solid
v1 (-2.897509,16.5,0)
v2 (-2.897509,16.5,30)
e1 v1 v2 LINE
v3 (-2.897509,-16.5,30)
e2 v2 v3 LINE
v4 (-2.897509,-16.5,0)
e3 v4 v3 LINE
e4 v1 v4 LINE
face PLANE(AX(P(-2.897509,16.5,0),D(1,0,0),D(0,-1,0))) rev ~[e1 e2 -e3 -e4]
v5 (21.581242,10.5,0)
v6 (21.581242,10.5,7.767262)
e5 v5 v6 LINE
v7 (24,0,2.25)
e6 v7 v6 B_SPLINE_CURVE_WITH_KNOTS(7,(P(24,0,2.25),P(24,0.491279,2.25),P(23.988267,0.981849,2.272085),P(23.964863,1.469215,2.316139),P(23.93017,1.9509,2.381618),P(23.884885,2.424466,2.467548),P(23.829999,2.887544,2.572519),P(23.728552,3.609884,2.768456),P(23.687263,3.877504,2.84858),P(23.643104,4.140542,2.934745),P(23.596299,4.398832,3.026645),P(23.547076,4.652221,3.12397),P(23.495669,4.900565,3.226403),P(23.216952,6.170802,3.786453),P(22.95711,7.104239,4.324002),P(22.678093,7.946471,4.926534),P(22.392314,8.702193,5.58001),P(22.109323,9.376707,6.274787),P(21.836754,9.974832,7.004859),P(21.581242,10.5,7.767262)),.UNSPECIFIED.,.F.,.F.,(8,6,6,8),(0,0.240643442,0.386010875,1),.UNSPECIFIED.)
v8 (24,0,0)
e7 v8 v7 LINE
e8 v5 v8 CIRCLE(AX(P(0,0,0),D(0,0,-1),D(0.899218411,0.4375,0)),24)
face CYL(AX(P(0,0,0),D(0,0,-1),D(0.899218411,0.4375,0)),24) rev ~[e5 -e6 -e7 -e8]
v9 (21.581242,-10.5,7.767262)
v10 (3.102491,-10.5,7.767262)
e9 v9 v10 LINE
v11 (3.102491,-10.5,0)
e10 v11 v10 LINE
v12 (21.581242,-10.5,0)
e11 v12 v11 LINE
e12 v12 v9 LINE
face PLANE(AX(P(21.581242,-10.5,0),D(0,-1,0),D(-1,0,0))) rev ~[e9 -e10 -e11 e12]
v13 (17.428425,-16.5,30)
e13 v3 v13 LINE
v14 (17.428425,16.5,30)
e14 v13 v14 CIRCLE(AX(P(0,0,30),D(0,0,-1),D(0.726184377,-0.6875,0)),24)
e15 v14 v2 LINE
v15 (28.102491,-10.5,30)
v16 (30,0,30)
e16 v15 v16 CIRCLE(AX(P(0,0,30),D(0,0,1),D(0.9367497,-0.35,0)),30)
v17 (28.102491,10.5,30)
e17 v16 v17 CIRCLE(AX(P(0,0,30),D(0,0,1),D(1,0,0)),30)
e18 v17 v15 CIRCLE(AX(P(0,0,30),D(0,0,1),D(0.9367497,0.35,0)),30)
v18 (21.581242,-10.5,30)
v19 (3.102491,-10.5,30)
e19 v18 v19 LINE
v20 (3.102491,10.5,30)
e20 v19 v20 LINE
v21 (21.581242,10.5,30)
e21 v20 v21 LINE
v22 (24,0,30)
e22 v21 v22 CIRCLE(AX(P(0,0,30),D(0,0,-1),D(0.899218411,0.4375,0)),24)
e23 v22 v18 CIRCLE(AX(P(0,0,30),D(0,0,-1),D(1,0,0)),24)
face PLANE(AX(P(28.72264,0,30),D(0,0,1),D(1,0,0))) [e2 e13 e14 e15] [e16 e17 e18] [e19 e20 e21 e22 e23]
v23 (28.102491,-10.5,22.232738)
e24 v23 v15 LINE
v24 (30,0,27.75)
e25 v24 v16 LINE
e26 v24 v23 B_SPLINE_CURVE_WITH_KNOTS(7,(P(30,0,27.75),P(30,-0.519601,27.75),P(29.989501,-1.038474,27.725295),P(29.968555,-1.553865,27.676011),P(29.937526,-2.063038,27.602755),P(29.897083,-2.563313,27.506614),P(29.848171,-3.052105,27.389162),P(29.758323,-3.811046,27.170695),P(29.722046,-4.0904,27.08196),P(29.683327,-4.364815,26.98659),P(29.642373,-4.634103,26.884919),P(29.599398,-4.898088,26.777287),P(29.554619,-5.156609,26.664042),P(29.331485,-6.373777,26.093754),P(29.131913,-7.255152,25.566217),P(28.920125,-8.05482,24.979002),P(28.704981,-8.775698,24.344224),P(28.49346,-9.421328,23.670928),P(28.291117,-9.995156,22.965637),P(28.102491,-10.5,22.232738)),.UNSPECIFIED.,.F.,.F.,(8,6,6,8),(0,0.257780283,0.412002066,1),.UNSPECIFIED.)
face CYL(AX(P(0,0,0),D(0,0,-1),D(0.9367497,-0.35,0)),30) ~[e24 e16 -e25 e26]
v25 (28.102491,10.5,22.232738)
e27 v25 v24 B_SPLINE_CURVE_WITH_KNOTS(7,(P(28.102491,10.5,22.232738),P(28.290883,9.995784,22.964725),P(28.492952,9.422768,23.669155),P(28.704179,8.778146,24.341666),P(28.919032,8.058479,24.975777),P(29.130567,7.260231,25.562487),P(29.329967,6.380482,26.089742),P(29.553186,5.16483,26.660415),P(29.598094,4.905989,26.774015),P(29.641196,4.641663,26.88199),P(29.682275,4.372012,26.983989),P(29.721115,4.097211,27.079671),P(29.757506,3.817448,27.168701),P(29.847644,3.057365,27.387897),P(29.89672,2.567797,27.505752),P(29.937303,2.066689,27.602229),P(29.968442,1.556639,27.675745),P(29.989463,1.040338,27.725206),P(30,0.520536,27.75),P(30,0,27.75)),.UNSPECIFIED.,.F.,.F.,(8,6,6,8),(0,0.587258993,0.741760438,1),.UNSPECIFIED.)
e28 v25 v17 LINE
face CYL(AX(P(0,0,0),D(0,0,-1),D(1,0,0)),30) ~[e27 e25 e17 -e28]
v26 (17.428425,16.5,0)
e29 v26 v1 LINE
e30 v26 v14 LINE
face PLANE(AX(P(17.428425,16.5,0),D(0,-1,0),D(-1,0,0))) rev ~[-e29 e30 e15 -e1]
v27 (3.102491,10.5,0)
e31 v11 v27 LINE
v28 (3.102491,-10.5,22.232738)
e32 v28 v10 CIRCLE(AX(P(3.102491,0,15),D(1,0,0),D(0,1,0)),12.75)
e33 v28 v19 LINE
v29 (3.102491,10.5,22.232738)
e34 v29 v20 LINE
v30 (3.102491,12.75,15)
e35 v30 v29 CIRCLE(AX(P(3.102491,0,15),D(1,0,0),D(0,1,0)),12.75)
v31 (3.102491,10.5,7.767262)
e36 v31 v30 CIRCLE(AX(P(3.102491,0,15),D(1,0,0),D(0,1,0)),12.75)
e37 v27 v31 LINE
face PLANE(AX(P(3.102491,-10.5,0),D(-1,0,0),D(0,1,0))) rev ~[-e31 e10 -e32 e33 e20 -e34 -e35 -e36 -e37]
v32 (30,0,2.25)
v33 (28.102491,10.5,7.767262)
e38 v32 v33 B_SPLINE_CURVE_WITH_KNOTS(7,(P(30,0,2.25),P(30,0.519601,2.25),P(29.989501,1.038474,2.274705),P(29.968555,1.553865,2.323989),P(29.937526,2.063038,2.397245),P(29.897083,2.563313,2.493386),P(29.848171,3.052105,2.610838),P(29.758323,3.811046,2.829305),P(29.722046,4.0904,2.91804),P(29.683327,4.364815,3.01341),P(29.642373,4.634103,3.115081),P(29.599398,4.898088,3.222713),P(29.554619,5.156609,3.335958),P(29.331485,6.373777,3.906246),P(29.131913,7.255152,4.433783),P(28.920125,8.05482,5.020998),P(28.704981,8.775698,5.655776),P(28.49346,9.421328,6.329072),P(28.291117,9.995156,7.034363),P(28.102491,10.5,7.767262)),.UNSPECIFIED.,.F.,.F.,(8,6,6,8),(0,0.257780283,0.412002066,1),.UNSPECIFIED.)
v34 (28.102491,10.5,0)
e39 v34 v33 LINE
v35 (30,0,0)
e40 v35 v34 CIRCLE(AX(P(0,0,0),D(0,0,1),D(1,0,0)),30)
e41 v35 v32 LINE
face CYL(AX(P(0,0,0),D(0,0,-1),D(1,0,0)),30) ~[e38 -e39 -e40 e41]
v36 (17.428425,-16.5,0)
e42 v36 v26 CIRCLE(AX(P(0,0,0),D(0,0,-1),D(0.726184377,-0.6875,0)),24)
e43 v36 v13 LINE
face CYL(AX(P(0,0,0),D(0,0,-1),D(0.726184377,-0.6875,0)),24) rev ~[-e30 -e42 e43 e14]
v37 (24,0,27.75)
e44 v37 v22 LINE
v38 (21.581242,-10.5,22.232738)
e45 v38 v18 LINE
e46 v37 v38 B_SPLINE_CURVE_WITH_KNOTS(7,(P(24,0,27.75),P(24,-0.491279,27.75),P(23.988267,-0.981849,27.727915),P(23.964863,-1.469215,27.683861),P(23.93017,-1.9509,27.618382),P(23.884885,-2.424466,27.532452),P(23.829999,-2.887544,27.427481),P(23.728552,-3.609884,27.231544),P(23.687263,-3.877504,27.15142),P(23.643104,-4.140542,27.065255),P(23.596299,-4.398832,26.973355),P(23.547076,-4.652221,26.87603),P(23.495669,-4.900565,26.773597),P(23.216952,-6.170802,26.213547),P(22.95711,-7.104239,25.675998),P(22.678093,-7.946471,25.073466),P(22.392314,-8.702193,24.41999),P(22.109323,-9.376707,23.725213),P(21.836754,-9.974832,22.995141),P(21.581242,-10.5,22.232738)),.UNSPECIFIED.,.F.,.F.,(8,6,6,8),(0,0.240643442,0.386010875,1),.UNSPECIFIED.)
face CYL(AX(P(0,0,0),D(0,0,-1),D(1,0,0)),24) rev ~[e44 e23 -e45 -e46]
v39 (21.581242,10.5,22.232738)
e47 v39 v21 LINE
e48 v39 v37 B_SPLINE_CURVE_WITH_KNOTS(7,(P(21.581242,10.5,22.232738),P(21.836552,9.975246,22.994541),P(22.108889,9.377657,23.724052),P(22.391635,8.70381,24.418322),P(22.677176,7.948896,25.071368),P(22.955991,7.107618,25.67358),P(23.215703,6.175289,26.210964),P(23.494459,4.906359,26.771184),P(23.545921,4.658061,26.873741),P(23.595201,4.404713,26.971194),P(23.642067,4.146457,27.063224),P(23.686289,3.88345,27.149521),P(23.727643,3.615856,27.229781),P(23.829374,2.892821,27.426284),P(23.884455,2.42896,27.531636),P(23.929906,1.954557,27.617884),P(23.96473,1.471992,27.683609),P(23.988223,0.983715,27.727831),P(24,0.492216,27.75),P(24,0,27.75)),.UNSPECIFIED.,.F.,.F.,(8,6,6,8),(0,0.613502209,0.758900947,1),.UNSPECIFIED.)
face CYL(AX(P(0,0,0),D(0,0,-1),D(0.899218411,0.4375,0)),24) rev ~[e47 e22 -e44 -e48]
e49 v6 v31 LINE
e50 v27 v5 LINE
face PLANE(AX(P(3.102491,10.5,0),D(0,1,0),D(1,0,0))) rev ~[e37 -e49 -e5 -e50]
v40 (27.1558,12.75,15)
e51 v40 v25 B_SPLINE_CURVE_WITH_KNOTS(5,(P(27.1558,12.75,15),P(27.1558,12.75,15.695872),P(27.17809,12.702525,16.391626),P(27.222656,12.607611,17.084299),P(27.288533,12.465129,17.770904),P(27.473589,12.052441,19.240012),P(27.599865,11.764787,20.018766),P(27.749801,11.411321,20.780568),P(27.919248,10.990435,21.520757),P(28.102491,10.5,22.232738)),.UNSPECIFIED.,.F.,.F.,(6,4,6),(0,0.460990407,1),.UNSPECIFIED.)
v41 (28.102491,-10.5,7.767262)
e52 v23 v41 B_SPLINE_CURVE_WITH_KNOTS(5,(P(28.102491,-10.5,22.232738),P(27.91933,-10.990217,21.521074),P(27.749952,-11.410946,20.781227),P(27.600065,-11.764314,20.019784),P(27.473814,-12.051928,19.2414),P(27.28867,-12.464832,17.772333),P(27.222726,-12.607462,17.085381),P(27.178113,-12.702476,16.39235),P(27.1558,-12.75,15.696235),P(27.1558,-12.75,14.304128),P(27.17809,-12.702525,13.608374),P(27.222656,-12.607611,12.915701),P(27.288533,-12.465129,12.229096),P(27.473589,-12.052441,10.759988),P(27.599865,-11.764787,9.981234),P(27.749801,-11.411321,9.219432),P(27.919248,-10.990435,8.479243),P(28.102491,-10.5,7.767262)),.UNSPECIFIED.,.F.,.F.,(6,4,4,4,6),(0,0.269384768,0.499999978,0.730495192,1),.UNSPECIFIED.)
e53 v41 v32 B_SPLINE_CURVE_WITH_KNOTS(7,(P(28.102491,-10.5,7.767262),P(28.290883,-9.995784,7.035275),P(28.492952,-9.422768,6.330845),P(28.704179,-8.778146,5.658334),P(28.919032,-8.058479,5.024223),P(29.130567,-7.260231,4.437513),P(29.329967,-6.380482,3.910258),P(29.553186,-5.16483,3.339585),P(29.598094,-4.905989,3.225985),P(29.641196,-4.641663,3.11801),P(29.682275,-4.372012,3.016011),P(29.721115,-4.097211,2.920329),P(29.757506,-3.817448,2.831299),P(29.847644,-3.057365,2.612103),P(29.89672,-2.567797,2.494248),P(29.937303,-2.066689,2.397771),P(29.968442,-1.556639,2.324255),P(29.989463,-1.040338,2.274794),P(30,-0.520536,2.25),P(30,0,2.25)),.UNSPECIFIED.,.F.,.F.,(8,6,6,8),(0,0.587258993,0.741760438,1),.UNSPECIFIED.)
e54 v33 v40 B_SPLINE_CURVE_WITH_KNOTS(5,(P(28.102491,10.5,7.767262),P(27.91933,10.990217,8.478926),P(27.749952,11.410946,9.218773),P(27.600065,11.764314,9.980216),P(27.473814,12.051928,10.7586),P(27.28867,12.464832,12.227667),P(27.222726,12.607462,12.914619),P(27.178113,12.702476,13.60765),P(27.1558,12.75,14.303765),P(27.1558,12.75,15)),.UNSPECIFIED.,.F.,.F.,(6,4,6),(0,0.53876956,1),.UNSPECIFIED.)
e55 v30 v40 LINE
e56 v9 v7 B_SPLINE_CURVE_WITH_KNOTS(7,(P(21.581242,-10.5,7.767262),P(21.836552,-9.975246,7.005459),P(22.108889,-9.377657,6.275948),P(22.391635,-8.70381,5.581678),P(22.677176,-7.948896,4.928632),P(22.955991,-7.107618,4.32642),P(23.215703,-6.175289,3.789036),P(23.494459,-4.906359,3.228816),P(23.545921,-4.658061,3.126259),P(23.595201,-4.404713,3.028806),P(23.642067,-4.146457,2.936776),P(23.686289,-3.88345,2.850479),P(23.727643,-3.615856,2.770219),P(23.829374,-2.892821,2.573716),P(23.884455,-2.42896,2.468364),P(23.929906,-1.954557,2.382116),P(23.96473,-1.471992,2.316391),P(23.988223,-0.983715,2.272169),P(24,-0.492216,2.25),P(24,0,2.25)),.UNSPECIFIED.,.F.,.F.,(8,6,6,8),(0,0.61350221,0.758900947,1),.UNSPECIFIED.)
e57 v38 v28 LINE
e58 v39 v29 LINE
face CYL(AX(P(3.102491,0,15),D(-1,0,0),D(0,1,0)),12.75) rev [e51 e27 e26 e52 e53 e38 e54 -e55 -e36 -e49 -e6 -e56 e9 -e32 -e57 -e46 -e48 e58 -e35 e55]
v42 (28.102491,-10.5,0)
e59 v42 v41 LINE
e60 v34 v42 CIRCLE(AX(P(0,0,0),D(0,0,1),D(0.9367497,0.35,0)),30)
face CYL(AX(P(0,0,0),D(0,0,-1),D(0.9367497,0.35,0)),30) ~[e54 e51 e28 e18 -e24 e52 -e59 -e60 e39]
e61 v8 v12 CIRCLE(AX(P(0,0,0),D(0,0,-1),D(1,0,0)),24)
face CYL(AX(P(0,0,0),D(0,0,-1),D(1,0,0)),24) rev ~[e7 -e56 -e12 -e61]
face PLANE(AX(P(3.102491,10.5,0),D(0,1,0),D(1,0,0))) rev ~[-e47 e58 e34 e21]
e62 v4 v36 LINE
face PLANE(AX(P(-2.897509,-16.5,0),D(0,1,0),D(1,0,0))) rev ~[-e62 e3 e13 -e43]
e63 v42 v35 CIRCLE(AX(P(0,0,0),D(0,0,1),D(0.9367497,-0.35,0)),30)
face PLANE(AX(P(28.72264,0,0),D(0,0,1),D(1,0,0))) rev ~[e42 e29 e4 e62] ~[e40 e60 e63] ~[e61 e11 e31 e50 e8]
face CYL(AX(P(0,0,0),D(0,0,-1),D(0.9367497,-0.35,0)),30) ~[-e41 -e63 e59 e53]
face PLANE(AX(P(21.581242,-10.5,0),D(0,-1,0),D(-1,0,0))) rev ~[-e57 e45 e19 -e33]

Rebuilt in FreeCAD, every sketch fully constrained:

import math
import FreeCAD as App
import Part
import Sketcher

V = App.Vector
Q = App.Units.Quantity

doc = App.newDocument("Part")
body = doc.addObject("PartDesign::Body", "Body")

# Sketch on XY plane
sketch1 = body.newObject("Sketcher::SketchObject", "Sketch")
sketch1.AttachmentSupport = (doc.getObject("XY_Plane"), [""])
sketch1.MapMode = "FlatFace"
sketch1.addGeometry([
    Part.ArcOfCircle(Part.Circle(V(0, 0, 0), V(0, 0, 1), 30), math.radians(-20.487315), math.radians(0)),  # 0
    Part.ArcOfCircle(Part.Circle(V(0, 0, 0), V(0, 0, 1), 30), math.radians(0), math.radians(20.487315)),  # 1
    Part.ArcOfCircle(Part.Circle(V(0, 0, 0), V(0, 0, 1), 30), math.radians(20.487315), math.radians(339.512685)),  # 2
    Part.ArcOfCircle(Part.Circle(V(0, 0, 0), V(0, 0, 1), 24), math.radians(0), math.radians(25.94448)),  # 3
    Part.ArcOfCircle(Part.Circle(V(0, 0, 0), V(0, 0, 1), 24), math.radians(-25.94448), math.radians(0)),  # 4
    Part.LineSegment(V(21.581242, -10.5, 0), V(3.102491, -10.5, 0)),  # 5
    Part.LineSegment(V(3.102491, -10.5, 0), V(3.102491, 10.5, 0)),  # 6
    Part.LineSegment(V(3.102491, 10.5, 0), V(21.581242, 10.5, 0)),  # 7
    Part.ArcOfCircle(Part.Circle(V(0, 0, 0), V(0, 0, 1), 24), math.radians(43.432537), math.radians(316.567463)),  # 8
    Part.LineSegment(V(17.428425, 16.5, 0), V(-2.897509, 16.5, 0)),  # 9
    Part.LineSegment(V(-2.897509, 16.5, 0), V(-2.897509, -16.5, 0)),  # 10
    Part.LineSegment(V(-2.897509, -16.5, 0), V(17.428425, -16.5, 0)),  # 11
], False)
sketch1.addConstraint([
    Sketcher.Constraint("Tangent", 0, 2, 1, 1),
    Sketcher.Constraint("Tangent", 1, 2, 2, 1),
    Sketcher.Constraint("Tangent", 2, 2, 0, 1),
    Sketcher.Constraint("Tangent", 3, 1, 4, 2),
    Sketcher.Constraint("Coincident", 4, 1, 5, 1),
    Sketcher.Constraint("Coincident", 5, 2, 6, 1),
    Sketcher.Constraint("Coincident", 6, 2, 7, 1),
    Sketcher.Constraint("Coincident", 7, 2, 3, 2),
    Sketcher.Constraint("Coincident", 8, 1, 9, 1),
    Sketcher.Constraint("Coincident", 9, 2, 10, 1),
    Sketcher.Constraint("Coincident", 10, 2, 11, 1),
    Sketcher.Constraint("Coincident", 11, 2, 8, 2),
    Sketcher.Constraint("Horizontal", 5),
    Sketcher.Constraint("Vertical", 6),
    Sketcher.Constraint("Horizontal", 7),
    Sketcher.Constraint("Horizontal", 9),
    Sketcher.Constraint("Vertical", 10),
    Sketcher.Constraint("Horizontal", 11),
    Sketcher.Constraint("Coincident", 0, 3, -1, 1),
    Sketcher.Constraint("Coincident", 3, 3, -1, 1),
    Sketcher.Constraint("Coincident", 8, 3, -1, 1),
    Sketcher.Constraint("Equal", 3, 4),
    Sketcher.Constraint("Equal", 4, 8),
    Sketcher.Constraint("PointOnObject", 0, 2, -1),
    Sketcher.Constraint("PointOnObject", 3, 1, -1),
    Sketcher.Constraint("Horizontal", 2, 2, 4, 1),
    Sketcher.Constraint("Horizontal", 1, 2, 6, 2),
    Sketcher.Constraint("Vertical", 1, 2, 2, 2),
    Sketcher.Constraint("Vertical", 8, 1, 11, 2),
    Sketcher.Constraint("Radius", 0, Q("30 mm")),
    Sketcher.Constraint("Radius", 3, Q("24 mm")),
    Sketcher.Constraint("DistanceY", 6, 1, 6, 2, Q("21 mm")),
    Sketcher.Constraint("DistanceY", 10, 2, 10, 1, Q("33 mm")),
    Sketcher.Constraint("DistanceX", 9, 2, 6, 2, Q("6 mm")),
    Sketcher.Constraint("DistanceX", 5, 2, 5, 1, Q("18.478751 mm")),
])
pad1 = body.newObject("PartDesign::Pad", "Pad")
pad1.Profile = sketch1
pad1.Length = 30

# Sketch on YZ plane
sketch2 = body.newObject("Sketcher::SketchObject", "Sketch001")
sketch2.AttachmentSupport = (doc.getObject("YZ_Plane"), [""])
sketch2.MapMode = "FlatFace"
sketch2.AttachmentOffset = App.Placement(V(0, 0, 3.102491), App.Rotation())
sketch2.addGeometry(Part.Circle(V(0, 15, 0), V(0, 0, 1), 12.75), False)
sketch2.addConstraint([
    Sketcher.Constraint("PointOnObject", 0, 3, -2),
    Sketcher.Constraint("Diameter", 0, Q("25.5 mm")),
    Sketcher.Constraint("DistanceY", -1, 1, 0, 3, Q("15 mm")),
])
pocket1 = body.newObject("PartDesign::Pocket", "Pocket")
pocket1.Profile = sketch2
pocket1.Length = 30
pocket1.Reversed = True

doc.recompute()
